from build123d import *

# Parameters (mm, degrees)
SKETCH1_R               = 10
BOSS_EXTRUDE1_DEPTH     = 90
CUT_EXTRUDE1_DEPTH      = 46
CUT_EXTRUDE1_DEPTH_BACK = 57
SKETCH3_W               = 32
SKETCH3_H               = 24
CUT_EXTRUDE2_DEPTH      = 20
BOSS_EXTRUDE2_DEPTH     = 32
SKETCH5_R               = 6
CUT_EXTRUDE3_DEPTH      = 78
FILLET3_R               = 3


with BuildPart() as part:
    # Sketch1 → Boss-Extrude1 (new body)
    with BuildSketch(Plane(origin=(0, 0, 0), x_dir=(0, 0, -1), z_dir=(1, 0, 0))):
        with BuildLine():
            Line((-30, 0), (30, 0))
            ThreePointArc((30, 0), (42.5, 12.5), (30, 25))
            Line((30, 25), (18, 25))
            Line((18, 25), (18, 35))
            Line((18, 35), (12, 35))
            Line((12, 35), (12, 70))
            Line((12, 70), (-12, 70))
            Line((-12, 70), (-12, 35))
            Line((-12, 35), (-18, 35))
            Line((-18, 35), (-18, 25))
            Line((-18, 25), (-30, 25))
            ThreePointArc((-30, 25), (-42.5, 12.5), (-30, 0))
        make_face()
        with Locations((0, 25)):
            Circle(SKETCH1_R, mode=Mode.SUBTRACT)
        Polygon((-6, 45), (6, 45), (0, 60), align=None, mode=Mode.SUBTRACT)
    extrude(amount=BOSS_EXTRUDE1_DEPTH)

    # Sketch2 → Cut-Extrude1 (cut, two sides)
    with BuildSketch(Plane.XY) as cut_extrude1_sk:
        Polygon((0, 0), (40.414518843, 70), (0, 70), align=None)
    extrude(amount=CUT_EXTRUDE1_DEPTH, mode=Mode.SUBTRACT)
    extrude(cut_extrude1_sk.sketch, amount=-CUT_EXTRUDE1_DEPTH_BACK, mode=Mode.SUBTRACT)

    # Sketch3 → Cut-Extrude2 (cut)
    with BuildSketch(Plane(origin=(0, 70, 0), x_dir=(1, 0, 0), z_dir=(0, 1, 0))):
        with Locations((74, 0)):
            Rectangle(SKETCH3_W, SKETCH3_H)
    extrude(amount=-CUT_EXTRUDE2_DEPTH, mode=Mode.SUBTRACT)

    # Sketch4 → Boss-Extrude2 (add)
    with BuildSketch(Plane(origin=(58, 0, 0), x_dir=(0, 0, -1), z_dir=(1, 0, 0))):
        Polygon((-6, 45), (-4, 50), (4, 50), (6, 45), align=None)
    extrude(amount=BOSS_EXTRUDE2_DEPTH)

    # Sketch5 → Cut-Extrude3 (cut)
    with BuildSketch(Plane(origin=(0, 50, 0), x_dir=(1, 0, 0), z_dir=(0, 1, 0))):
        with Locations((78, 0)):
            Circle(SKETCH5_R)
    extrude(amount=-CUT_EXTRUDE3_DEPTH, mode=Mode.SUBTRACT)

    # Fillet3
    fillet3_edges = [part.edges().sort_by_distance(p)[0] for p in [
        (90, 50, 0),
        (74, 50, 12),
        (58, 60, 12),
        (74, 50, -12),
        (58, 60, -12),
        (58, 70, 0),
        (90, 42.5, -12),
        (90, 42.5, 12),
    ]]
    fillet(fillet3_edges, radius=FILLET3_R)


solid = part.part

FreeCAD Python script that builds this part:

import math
import FreeCAD as App
import Part
import Sketcher

V = App.Vector
Q = App.Units.Quantity


def edges_at(feature, points):
    """Names of the edges that pass closest to the given points."""
    edges = feature.Shape.Edges
    near = lambda p: min(range(len(edges)), key=lambda i: edges[i].distToShape(Part.Vertex(*p))[0])
    return sorted({f"Edge{near(p) + 1}" for p in points})

doc = App.newDocument("Part")
params = doc.addObject("Spreadsheet::Sheet", "Params")
for row, (alias, value) in enumerate([
    ("sketch1_diameter", "20 mm"),
    ("sketch1_radius", "12.5 mm"),
    ("sketch1_width", "10 mm"),
    ("sketch1_width2", "35 mm"),
    ("sketch1_height", "60 mm"),
    ("pad1_length", "90 mm"),
    ("sketch2_height", "70 mm"),
    ("sketch3_width", "32 mm"),
    ("sketch3_height", "24 mm"),
    ("pocket2_length", "20 mm"),
    ("sketch4_height", "12 mm"),
    ("sketch4_height2", "8 mm"),
    ("pad2_length", "32 mm"),
    ("sketch5_diameter", "12 mm"),
    ("pocket3_length", "78 mm"),
    ("fillet_radius", "3 mm"),
], start=1):
    params.set(f"A{row}", alias)
    params.set(f"B{row}", "=" + value)
    params.setAlias(f"B{row}", alias)

body = doc.addObject("PartDesign::Body", "Body")

# Sketch on YZ plane
sketch1 = body.newObject("Sketcher::SketchObject", "Sketch")
sketch1.AttachmentSupport = (doc.getObject("YZ_Plane"), [""])
sketch1.MapMode = "FlatFace"
sketch1.addGeometry([
    Part.LineSegment(V(0, 30, 0), V(0, -30, 0)),  # 0
    Part.ArcOfCircle(Part.Circle(V(12.5, -30, 0), V(0, 0, 1), 12.5), math.radians(180), math.radians(360)),  # 1
    Part.LineSegment(V(25, -30, 0), V(25, -18, 0)),  # 2
    Part.LineSegment(V(25, -18, 0), V(35, -18, 0)),  # 3
    Part.LineSegment(V(35, -18, 0), V(35, -12, 0)),  # 4
    Part.LineSegment(V(35, -12, 0), V(70, -12, 0)),  # 5
    Part.LineSegment(V(70, -12, 0), V(70, 12, 0)),  # 6
    Part.LineSegment(V(70, 12, 0), V(35, 12, 0)),  # 7
    Part.LineSegment(V(35, 12, 0), V(35, 18, 0)),  # 8
    Part.LineSegment(V(35, 18, 0), V(25, 18, 0)),  # 9
    Part.LineSegment(V(25, 18, 0), V(25, 30, 0)),  # 10
    Part.ArcOfCircle(Part.Circle(V(12.5, 30, 0), V(0, 0, 1), 12.5), math.radians(0), math.radians(180)),  # 11
    Part.Circle(V(25, 0, 0), V(0, 0, 1), 10),  # 12
    Part.LineSegment(V(45, -6, 0), V(45, 6, 0)),  # 13
    Part.LineSegment(V(45, 6, 0), V(60, 0, 0)),  # 14
    Part.LineSegment(V(60, 0, 0), V(45, -6, 0)),  # 15
], False)
sketch1.addConstraint([
    Sketcher.Constraint("Tangent", 0, 2, 1, 1),
    Sketcher.Constraint("Tangent", 1, 2, 2, 1),
    Sketcher.Constraint("Coincident", 2, 2, 3, 1),
    Sketcher.Constraint("Coincident", 3, 2, 4, 1),
    Sketcher.Constraint("Coincident", 4, 2, 5, 1),
    Sketcher.Constraint("Coincident", 5, 2, 6, 1),
    Sketcher.Constraint("Coincident", 6, 2, 7, 1),
    Sketcher.Constraint("Coincident", 7, 2, 8, 1),
    Sketcher.Constraint("Coincident", 8, 2, 9, 1),
    Sketcher.Constraint("Coincident", 9, 2, 10, 1),
    Sketcher.Constraint("Tangent", 10, 2, 11, 1),
    Sketcher.Constraint("Tangent", 11, 2, 0, 1),
    Sketcher.Constraint("Coincident", 13, 2, 14, 1),
    Sketcher.Constraint("Coincident", 14, 2, 15, 1),
    Sketcher.Constraint("Coincident", 15, 2, 13, 1),
    Sketcher.Constraint("Vertical", 0),
    Sketcher.Constraint("Vertical", 2),
    Sketcher.Constraint("Horizontal", 3),
    Sketcher.Constraint("Vertical", 4),
    Sketcher.Constraint("Horizontal", 5),
    Sketcher.Constraint("Vertical", 6),
    Sketcher.Constraint("Horizontal", 7),
    Sketcher.Constraint("Vertical", 8),
    Sketcher.Constraint("Horizontal", 9),
    Sketcher.Constraint("Vertical", 10),
    Sketcher.Constraint("Vertical", 13),
    Sketcher.Constraint("Equal", 1, 11),
    Sketcher.Constraint("Symmetric", 0, 2, 11, 2, -1, 1),
    Sketcher.Constraint("Symmetric", 4, 2, 7, 2, -1),
    Sketcher.Constraint("PointOnObject", 12, 3, -1),
    Sketcher.Constraint("PointOnObject", 14, 2, -1),
    Sketcher.Constraint("Vertical", 12, 3, 1, 2),
    Sketcher.Constraint("Equal", 4, 8),
    Sketcher.Constraint("Equal", 10, 13),
    Sketcher.Constraint("Equal", 14, 15),
    Sketcher.Constraint("Diameter", 12, 20.0),
    Sketcher.Constraint("Radius", 1, 12.5),
    Sketcher.Constraint("DistanceX", 3, 1, 3, 2, 10.0),
    Sketcher.Constraint("DistanceX", 5, 1, 5, 2, 35.0),
    Sketcher.Constraint("DistanceY", 0, 2, 0, 1, 60.0),
    Sketcher.Constraint("DistanceY", 2, 1, 2, 2, 12.0),
    Sketcher.Constraint("DistanceY", 4, 1, 4, 2, 6.0),
    Sketcher.Constraint("DistanceX", -1, 1, 13, 2, 45.0),
    Sketcher.Constraint("DistanceX", -1, 1, 14, 2, 60.0),
])
sketch1.setExpression("Constraints[35]", "Params.sketch1_diameter")
sketch1.setExpression("Constraints[36]", "Params.sketch1_radius")
sketch1.setExpression("Constraints[37]", "Params.sketch1_width")
sketch1.setExpression("Constraints[38]", "Params.sketch1_width2")
sketch1.setExpression("Constraints[39]", "Params.sketch1_height")
pad1 = body.newObject("PartDesign::Pad", "Pad")
pad1.Profile = sketch1
pad1.setExpression("Length", "Params.pad1_length")

# Sketch on XY plane
sketch2 = body.newObject("Sketcher::SketchObject", "Sketch001")
sketch2.AttachmentSupport = (doc.getObject("XY_Plane"), [""])
sketch2.MapMode = "FlatFace"
sketch2.addGeometry([
    Part.LineSegment(V(0, 0, 0), V(40.414519, 70, 0)),
    Part.LineSegment(V(40.414519, 70, 0), V(0, 70, 0)),
    Part.LineSegment(V(0, 70, 0), V(0, 0, 0)),
], False)
sketch2.addConstraint([
    Sketcher.Constraint("Coincident", 0, 2, 1, 1),
    Sketcher.Constraint("Coincident", 1, 2, 2, 1),
    Sketcher.Constraint("Coincident", 2, 2, 0, 1),
    Sketcher.Constraint("Horizontal", 1),
    Sketcher.Constraint("Vertical", 2),
    Sketcher.Constraint("Coincident", 2, 2, -1, 1),
    Sketcher.Constraint("DistanceY", 2, 2, 2, 1, 70.0),
    Sketcher.Constraint("Angle", 0, Q("60 deg")),
])
sketch2.setExpression("Constraints[6]", "Params.sketch2_height")
pocket1 = body.newObject("PartDesign::Pocket", "Pocket")
pocket1.Profile = sketch2
pocket1.Type = "ThroughAll"
pocket1.Midplane = True

# Sketch on XZ plane
sketch3 = body.newObject("Sketcher::SketchObject", "Sketch002")
sketch3.AttachmentSupport = (doc.getObject("XZ_Plane"), [""])
sketch3.MapMode = "FlatFace"
sketch3.AttachmentOffset = App.Placement(V(0, 0, -70), App.Rotation())
sketch3.addGeometry([
    Part.LineSegment(V(58, -12, 0), V(58, 12, 0)),
    Part.LineSegment(V(58, 12, 0), V(90, 12, 0)),
    Part.LineSegment(V(90, 12, 0), V(90, -12, 0)),
    Part.LineSegment(V(90, -12, 0), V(58, -12, 0)),
], False)
sketch3.addConstraint([
    Sketcher.Constraint("Coincident", 0, 2, 1, 1),
    Sketcher.Constraint("Coincident", 1, 2, 2, 1),
    Sketcher.Constraint("Coincident", 2, 2, 3, 1),
    Sketcher.Constraint("Coincident", 3, 2, 0, 1),
    Sketcher.Constraint("Vertical", 0),
    Sketcher.Constraint("Horizontal", 1),
    Sketcher.Constraint("Vertical", 2),
    Sketcher.Constraint("Horizontal", 3),
    Sketcher.Constraint("DistanceX", 1, 1, 1, 2, 32.0),
    Sketcher.Constraint("DistanceY", 0, 1, 0, 2, 24.0),
    Sketcher.Constraint("DistanceX", -1, 1, 0, 2, 58.0),
    Sketcher.Constraint("DistanceY", -1, 1, 0, 2, 12.0),
])
sketch3.setExpression("Constraints[8]", "Params.sketch3_width")
sketch3.setExpression("Constraints[9]", "Params.sketch3_height")
pocket2 = body.newObject("PartDesign::Pocket", "Pocket001")
pocket2.Profile = sketch3
pocket2.setExpression("Length", "Params.pocket2_length")
pocket2.Reversed = True

# Sketch on YZ plane
sketch4 = body.newObject("Sketcher::SketchObject", "Sketch003")
sketch4.AttachmentSupport = (doc.getObject("YZ_Plane"), [""])
sketch4.MapMode = "FlatFace"
sketch4.AttachmentOffset = App.Placement(V(0, 0, 58), App.Rotation())
sketch4.addGeometry([
    Part.LineSegment(V(50, 4, 0), V(45, 6, 0)),
    Part.LineSegment(V(45, 6, 0), V(45, -6, 0)),
    Part.LineSegment(V(45, -6, 0), V(50, -4, 0)),
    Part.LineSegment(V(50, -4, 0), V(50, 4, 0)),
], False)
sketch4.addConstraint([
    Sketcher.Constraint("Coincident", 0, 2, 1, 1),
    Sketcher.Constraint("Coincident", 1, 2, 2, 1),
    Sketcher.Constraint("Coincident", 2, 2, 3, 1),
    Sketcher.Constraint("Coincident", 3, 2, 0, 1),
    Sketcher.Constraint("Vertical", 1),
    Sketcher.Constraint("Vertical", 3),
    Sketcher.Constraint("Equal", 0, 2),
    Sketcher.Constraint("DistanceY", 1, 2, 1, 1, 12.0),
    Sketcher.Constraint("DistanceY", 3, 1, 3, 2, 8.0),
    Sketcher.Constraint("DistanceX", -1, 1, 0, 2, 45.0),
    Sketcher.Constraint("DistanceY", -1, 1, 0, 2, 6.0),
    Sketcher.Constraint("DistanceX", -1, 1, 2, 2, 50.0),
])
sketch4.setExpression("Constraints[7]", "Params.sketch4_height")
sketch4.setExpression("Constraints[8]", "Params.sketch4_height2")
pad2 = body.newObject("PartDesign::Pad", "Pad001")
pad2.Profile = sketch4
pad2.setExpression("Length", "Params.pad2_length")

# Sketch on XZ plane
sketch5 = body.newObject("Sketcher::SketchObject", "Sketch004")
sketch5.AttachmentSupport = (doc.getObject("XZ_Plane"), [""])
sketch5.MapMode = "FlatFace"
sketch5.AttachmentOffset = App.Placement(V(0, 0, -50), App.Rotation())
sketch5.addGeometry(Part.Circle(V(78, 0, 0), V(0, 0, 1), 6), False)
sketch5.addConstraint([
    Sketcher.Constraint("PointOnObject", 0, 3, -1),
    Sketcher.Constraint("Diameter", 0, 12.0),
    Sketcher.Constraint("DistanceX", -1, 1, 0, 3, 78.0),
])
sketch5.setExpression("Constraints[1]", "Params.sketch5_diameter")
pocket3 = body.newObject("PartDesign::Pocket", "Pocket002")
pocket3.Profile = sketch5
pocket3.setExpression("Length", "Params.pocket3_length")
pocket3.Reversed = True
doc.recompute()

fillet = body.newObject("PartDesign::Fillet", "Fillet")
fillet.Base = (pocket3, edges_at(pocket3, [
    (90, 50, 0),
    (74, 50, 12),
    (58, 60, 12),
    (74, 50, -12),
    (58, 60, -12),
    (58, 70, 0),
    (90, 42.5, -12),
    (90, 42.5, 12),
]))
fillet.setExpression("Radius", "Params.fillet_radius")

doc.recompute()
